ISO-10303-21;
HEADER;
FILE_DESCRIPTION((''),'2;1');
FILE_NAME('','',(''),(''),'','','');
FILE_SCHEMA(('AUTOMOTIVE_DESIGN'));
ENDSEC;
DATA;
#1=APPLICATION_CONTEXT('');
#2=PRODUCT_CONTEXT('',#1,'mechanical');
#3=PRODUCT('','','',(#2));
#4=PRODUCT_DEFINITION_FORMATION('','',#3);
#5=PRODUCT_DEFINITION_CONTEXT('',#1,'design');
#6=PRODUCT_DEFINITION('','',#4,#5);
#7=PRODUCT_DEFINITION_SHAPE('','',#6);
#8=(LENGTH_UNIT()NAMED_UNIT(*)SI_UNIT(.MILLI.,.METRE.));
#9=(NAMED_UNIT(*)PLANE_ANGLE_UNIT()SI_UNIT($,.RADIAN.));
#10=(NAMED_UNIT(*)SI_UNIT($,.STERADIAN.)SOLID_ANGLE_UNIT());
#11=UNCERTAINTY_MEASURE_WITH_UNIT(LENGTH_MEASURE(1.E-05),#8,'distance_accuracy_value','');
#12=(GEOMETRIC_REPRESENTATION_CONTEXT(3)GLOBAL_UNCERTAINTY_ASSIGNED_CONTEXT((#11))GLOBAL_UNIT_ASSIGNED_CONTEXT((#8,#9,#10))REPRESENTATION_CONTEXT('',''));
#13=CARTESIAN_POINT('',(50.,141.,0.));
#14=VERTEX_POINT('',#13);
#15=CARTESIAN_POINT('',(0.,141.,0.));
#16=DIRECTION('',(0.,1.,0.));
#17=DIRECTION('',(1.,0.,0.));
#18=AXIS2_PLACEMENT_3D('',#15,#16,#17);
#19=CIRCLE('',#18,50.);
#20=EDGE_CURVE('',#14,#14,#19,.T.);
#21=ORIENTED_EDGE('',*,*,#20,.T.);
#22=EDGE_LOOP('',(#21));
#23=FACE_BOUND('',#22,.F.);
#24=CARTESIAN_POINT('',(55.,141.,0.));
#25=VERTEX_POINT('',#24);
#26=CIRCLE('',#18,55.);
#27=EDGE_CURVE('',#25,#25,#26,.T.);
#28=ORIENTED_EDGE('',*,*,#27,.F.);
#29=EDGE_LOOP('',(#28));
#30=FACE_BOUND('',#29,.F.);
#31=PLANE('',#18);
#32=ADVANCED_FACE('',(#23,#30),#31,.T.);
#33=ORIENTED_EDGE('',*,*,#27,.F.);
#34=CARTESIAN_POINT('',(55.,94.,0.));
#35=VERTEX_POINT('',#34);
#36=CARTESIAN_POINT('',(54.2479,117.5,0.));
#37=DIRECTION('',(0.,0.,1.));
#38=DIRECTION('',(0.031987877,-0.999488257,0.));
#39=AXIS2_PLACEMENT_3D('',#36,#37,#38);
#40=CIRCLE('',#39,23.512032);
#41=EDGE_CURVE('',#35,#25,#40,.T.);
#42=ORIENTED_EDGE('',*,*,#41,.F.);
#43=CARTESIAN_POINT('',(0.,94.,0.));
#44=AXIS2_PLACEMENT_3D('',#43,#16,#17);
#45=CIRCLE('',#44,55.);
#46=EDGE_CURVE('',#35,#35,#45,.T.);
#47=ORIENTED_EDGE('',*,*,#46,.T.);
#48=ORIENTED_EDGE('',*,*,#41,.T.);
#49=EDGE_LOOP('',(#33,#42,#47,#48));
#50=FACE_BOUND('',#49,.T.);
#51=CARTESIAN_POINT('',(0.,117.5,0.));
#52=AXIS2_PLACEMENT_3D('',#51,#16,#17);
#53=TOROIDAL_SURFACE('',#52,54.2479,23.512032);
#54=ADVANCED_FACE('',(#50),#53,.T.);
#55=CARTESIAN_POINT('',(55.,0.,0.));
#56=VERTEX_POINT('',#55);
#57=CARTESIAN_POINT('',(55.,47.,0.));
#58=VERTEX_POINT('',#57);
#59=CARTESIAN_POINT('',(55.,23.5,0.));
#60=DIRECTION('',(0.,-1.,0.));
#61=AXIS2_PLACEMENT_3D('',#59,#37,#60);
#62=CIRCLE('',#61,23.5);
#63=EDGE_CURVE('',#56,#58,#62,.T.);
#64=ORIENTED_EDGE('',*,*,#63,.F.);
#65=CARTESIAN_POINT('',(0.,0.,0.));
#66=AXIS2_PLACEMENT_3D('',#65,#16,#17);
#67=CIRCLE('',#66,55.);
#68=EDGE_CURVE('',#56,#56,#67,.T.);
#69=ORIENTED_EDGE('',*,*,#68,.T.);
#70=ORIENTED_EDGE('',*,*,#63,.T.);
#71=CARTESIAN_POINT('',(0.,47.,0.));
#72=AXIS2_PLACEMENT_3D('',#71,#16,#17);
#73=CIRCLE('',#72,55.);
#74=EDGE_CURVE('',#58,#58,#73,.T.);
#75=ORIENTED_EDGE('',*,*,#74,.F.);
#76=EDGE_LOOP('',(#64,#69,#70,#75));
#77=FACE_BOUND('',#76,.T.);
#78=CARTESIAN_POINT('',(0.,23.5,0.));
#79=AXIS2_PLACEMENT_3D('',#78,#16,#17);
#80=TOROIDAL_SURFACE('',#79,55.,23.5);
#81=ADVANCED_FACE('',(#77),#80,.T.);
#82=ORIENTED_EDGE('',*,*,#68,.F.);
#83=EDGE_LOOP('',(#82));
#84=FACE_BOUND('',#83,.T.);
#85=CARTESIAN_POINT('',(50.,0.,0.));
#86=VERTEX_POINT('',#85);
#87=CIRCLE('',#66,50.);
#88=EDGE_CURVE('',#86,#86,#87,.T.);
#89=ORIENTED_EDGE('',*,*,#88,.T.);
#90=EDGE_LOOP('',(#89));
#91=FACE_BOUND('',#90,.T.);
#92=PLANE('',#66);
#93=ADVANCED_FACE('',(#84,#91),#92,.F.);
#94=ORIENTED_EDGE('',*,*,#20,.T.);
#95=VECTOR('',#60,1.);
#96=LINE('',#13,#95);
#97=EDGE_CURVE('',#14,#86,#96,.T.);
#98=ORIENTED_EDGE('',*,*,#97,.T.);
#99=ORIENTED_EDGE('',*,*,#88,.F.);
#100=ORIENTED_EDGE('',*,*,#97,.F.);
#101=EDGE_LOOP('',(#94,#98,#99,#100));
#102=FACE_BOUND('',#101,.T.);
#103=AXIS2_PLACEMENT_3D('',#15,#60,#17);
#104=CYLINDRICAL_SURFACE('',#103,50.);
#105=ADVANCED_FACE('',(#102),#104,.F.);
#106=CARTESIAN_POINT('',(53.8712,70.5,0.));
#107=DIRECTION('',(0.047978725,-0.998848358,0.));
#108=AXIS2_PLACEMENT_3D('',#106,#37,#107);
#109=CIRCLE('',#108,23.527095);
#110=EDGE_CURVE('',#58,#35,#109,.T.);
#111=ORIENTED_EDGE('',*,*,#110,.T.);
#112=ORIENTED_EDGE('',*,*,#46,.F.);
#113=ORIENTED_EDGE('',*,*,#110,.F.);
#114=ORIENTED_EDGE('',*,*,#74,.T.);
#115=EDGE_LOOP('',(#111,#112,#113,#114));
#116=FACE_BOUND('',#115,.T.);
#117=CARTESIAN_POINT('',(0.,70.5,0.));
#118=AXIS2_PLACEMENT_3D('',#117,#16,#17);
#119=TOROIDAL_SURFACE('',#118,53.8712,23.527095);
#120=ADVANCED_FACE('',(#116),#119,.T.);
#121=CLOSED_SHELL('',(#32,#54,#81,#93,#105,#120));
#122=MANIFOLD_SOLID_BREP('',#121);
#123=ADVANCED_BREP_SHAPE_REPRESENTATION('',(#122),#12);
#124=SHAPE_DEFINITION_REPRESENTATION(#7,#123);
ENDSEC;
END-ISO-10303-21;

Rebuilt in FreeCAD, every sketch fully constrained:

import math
import FreeCAD as App
import Part
import Sketcher

doc = App.newDocument("Part")
body = doc.addObject("PartDesign::Body", "Body")

# Sketch on XY plane
sketch1 = body.newObject("Sketcher::SketchObject", "Sketch")
sketch1.AttachmentSupport = (doc.getObject("XY_Plane"), [""])
sketch1.MapMode = "FlatFace"
sketch1.addGeometry([
    Part.LineSegment(App.Vector(50, 141, 0), App.Vector(50, 0, 0)),  # 0
    Part.LineSegment(App.Vector(50, 0, 0), App.Vector(55, 0, 0)),  # 1
    Part.ArcOfCircle(Part.Circle(App.Vector(55, 24, 0), App.Vector(0, 0, 1), 24), math.radians(-90), math.radians(90)),  # 2
    Part.ArcOfCircle(Part.Circle(App.Vector(54, 70, 0), App.Vector(0, 0, 1), 24), math.radians(-87), math.radians(87)),  # 3
    Part.ArcOfCircle(Part.Circle(App.Vector(54, 118, 0), App.Vector(0, 0, 1), 24), math.radians(-88), math.radians(88)),  # 4
    Part.LineSegment(App.Vector(55, 141, 0), App.Vector(50, 141, 0)),  # 5
], False)
sketch1.addConstraint([
    Sketcher.Constraint("Coincident", 0, 2, 1, 1),
    Sketcher.Constraint("Tangent", 1, 2, 2, 1),
    Sketcher.Constraint("Coincident", 2, 2, 3, 1),
    Sketcher.Constraint("Coincident", 3, 2, 4, 1),
    Sketcher.Constraint("Coincident", 4, 2, 5, 1),
    Sketcher.Constraint("Coincident", 5, 2, 0, 1),
    Sketcher.Constraint("Vertical", 0),
    Sketcher.Constraint("Horizontal", 1),
    Sketcher.Constraint("Horizontal", 5),
    Sketcher.Constraint("PointOnObject", 0, 2, -1),
    Sketcher.Constraint("Vertical", 1, 2, 2, 2),
    Sketcher.Constraint("Vertical", 2, 2, 3, 2),
    Sketcher.Constraint("Vertical", 3, 2, 4, 2),
    Sketcher.Constraint("Radius", 2, 23.5),
    Sketcher.Constraint("DistanceX", 1, 1, 1, 2, 5.0),
    Sketcher.Constraint("DistanceY", 0, 2, 0, 1, 141.0),
    Sketcher.Constraint("DistanceX", -1, 1, 0, 2, 50.0),
    Sketcher.Constraint("Radius", 3, 23.527),
    Sketcher.Constraint("Radius", 4, 23.512),
    Sketcher.Constraint("DistanceY", 2, 2, 3, 3, 23.5),
])
revolution = body.newObject("PartDesign::Revolution", "Revolution")
revolution.Profile = sketch1
revolution.ReferenceAxis = (sketch1, ["V_Axis"])
revolution.Angle = 360

doc.recompute()
